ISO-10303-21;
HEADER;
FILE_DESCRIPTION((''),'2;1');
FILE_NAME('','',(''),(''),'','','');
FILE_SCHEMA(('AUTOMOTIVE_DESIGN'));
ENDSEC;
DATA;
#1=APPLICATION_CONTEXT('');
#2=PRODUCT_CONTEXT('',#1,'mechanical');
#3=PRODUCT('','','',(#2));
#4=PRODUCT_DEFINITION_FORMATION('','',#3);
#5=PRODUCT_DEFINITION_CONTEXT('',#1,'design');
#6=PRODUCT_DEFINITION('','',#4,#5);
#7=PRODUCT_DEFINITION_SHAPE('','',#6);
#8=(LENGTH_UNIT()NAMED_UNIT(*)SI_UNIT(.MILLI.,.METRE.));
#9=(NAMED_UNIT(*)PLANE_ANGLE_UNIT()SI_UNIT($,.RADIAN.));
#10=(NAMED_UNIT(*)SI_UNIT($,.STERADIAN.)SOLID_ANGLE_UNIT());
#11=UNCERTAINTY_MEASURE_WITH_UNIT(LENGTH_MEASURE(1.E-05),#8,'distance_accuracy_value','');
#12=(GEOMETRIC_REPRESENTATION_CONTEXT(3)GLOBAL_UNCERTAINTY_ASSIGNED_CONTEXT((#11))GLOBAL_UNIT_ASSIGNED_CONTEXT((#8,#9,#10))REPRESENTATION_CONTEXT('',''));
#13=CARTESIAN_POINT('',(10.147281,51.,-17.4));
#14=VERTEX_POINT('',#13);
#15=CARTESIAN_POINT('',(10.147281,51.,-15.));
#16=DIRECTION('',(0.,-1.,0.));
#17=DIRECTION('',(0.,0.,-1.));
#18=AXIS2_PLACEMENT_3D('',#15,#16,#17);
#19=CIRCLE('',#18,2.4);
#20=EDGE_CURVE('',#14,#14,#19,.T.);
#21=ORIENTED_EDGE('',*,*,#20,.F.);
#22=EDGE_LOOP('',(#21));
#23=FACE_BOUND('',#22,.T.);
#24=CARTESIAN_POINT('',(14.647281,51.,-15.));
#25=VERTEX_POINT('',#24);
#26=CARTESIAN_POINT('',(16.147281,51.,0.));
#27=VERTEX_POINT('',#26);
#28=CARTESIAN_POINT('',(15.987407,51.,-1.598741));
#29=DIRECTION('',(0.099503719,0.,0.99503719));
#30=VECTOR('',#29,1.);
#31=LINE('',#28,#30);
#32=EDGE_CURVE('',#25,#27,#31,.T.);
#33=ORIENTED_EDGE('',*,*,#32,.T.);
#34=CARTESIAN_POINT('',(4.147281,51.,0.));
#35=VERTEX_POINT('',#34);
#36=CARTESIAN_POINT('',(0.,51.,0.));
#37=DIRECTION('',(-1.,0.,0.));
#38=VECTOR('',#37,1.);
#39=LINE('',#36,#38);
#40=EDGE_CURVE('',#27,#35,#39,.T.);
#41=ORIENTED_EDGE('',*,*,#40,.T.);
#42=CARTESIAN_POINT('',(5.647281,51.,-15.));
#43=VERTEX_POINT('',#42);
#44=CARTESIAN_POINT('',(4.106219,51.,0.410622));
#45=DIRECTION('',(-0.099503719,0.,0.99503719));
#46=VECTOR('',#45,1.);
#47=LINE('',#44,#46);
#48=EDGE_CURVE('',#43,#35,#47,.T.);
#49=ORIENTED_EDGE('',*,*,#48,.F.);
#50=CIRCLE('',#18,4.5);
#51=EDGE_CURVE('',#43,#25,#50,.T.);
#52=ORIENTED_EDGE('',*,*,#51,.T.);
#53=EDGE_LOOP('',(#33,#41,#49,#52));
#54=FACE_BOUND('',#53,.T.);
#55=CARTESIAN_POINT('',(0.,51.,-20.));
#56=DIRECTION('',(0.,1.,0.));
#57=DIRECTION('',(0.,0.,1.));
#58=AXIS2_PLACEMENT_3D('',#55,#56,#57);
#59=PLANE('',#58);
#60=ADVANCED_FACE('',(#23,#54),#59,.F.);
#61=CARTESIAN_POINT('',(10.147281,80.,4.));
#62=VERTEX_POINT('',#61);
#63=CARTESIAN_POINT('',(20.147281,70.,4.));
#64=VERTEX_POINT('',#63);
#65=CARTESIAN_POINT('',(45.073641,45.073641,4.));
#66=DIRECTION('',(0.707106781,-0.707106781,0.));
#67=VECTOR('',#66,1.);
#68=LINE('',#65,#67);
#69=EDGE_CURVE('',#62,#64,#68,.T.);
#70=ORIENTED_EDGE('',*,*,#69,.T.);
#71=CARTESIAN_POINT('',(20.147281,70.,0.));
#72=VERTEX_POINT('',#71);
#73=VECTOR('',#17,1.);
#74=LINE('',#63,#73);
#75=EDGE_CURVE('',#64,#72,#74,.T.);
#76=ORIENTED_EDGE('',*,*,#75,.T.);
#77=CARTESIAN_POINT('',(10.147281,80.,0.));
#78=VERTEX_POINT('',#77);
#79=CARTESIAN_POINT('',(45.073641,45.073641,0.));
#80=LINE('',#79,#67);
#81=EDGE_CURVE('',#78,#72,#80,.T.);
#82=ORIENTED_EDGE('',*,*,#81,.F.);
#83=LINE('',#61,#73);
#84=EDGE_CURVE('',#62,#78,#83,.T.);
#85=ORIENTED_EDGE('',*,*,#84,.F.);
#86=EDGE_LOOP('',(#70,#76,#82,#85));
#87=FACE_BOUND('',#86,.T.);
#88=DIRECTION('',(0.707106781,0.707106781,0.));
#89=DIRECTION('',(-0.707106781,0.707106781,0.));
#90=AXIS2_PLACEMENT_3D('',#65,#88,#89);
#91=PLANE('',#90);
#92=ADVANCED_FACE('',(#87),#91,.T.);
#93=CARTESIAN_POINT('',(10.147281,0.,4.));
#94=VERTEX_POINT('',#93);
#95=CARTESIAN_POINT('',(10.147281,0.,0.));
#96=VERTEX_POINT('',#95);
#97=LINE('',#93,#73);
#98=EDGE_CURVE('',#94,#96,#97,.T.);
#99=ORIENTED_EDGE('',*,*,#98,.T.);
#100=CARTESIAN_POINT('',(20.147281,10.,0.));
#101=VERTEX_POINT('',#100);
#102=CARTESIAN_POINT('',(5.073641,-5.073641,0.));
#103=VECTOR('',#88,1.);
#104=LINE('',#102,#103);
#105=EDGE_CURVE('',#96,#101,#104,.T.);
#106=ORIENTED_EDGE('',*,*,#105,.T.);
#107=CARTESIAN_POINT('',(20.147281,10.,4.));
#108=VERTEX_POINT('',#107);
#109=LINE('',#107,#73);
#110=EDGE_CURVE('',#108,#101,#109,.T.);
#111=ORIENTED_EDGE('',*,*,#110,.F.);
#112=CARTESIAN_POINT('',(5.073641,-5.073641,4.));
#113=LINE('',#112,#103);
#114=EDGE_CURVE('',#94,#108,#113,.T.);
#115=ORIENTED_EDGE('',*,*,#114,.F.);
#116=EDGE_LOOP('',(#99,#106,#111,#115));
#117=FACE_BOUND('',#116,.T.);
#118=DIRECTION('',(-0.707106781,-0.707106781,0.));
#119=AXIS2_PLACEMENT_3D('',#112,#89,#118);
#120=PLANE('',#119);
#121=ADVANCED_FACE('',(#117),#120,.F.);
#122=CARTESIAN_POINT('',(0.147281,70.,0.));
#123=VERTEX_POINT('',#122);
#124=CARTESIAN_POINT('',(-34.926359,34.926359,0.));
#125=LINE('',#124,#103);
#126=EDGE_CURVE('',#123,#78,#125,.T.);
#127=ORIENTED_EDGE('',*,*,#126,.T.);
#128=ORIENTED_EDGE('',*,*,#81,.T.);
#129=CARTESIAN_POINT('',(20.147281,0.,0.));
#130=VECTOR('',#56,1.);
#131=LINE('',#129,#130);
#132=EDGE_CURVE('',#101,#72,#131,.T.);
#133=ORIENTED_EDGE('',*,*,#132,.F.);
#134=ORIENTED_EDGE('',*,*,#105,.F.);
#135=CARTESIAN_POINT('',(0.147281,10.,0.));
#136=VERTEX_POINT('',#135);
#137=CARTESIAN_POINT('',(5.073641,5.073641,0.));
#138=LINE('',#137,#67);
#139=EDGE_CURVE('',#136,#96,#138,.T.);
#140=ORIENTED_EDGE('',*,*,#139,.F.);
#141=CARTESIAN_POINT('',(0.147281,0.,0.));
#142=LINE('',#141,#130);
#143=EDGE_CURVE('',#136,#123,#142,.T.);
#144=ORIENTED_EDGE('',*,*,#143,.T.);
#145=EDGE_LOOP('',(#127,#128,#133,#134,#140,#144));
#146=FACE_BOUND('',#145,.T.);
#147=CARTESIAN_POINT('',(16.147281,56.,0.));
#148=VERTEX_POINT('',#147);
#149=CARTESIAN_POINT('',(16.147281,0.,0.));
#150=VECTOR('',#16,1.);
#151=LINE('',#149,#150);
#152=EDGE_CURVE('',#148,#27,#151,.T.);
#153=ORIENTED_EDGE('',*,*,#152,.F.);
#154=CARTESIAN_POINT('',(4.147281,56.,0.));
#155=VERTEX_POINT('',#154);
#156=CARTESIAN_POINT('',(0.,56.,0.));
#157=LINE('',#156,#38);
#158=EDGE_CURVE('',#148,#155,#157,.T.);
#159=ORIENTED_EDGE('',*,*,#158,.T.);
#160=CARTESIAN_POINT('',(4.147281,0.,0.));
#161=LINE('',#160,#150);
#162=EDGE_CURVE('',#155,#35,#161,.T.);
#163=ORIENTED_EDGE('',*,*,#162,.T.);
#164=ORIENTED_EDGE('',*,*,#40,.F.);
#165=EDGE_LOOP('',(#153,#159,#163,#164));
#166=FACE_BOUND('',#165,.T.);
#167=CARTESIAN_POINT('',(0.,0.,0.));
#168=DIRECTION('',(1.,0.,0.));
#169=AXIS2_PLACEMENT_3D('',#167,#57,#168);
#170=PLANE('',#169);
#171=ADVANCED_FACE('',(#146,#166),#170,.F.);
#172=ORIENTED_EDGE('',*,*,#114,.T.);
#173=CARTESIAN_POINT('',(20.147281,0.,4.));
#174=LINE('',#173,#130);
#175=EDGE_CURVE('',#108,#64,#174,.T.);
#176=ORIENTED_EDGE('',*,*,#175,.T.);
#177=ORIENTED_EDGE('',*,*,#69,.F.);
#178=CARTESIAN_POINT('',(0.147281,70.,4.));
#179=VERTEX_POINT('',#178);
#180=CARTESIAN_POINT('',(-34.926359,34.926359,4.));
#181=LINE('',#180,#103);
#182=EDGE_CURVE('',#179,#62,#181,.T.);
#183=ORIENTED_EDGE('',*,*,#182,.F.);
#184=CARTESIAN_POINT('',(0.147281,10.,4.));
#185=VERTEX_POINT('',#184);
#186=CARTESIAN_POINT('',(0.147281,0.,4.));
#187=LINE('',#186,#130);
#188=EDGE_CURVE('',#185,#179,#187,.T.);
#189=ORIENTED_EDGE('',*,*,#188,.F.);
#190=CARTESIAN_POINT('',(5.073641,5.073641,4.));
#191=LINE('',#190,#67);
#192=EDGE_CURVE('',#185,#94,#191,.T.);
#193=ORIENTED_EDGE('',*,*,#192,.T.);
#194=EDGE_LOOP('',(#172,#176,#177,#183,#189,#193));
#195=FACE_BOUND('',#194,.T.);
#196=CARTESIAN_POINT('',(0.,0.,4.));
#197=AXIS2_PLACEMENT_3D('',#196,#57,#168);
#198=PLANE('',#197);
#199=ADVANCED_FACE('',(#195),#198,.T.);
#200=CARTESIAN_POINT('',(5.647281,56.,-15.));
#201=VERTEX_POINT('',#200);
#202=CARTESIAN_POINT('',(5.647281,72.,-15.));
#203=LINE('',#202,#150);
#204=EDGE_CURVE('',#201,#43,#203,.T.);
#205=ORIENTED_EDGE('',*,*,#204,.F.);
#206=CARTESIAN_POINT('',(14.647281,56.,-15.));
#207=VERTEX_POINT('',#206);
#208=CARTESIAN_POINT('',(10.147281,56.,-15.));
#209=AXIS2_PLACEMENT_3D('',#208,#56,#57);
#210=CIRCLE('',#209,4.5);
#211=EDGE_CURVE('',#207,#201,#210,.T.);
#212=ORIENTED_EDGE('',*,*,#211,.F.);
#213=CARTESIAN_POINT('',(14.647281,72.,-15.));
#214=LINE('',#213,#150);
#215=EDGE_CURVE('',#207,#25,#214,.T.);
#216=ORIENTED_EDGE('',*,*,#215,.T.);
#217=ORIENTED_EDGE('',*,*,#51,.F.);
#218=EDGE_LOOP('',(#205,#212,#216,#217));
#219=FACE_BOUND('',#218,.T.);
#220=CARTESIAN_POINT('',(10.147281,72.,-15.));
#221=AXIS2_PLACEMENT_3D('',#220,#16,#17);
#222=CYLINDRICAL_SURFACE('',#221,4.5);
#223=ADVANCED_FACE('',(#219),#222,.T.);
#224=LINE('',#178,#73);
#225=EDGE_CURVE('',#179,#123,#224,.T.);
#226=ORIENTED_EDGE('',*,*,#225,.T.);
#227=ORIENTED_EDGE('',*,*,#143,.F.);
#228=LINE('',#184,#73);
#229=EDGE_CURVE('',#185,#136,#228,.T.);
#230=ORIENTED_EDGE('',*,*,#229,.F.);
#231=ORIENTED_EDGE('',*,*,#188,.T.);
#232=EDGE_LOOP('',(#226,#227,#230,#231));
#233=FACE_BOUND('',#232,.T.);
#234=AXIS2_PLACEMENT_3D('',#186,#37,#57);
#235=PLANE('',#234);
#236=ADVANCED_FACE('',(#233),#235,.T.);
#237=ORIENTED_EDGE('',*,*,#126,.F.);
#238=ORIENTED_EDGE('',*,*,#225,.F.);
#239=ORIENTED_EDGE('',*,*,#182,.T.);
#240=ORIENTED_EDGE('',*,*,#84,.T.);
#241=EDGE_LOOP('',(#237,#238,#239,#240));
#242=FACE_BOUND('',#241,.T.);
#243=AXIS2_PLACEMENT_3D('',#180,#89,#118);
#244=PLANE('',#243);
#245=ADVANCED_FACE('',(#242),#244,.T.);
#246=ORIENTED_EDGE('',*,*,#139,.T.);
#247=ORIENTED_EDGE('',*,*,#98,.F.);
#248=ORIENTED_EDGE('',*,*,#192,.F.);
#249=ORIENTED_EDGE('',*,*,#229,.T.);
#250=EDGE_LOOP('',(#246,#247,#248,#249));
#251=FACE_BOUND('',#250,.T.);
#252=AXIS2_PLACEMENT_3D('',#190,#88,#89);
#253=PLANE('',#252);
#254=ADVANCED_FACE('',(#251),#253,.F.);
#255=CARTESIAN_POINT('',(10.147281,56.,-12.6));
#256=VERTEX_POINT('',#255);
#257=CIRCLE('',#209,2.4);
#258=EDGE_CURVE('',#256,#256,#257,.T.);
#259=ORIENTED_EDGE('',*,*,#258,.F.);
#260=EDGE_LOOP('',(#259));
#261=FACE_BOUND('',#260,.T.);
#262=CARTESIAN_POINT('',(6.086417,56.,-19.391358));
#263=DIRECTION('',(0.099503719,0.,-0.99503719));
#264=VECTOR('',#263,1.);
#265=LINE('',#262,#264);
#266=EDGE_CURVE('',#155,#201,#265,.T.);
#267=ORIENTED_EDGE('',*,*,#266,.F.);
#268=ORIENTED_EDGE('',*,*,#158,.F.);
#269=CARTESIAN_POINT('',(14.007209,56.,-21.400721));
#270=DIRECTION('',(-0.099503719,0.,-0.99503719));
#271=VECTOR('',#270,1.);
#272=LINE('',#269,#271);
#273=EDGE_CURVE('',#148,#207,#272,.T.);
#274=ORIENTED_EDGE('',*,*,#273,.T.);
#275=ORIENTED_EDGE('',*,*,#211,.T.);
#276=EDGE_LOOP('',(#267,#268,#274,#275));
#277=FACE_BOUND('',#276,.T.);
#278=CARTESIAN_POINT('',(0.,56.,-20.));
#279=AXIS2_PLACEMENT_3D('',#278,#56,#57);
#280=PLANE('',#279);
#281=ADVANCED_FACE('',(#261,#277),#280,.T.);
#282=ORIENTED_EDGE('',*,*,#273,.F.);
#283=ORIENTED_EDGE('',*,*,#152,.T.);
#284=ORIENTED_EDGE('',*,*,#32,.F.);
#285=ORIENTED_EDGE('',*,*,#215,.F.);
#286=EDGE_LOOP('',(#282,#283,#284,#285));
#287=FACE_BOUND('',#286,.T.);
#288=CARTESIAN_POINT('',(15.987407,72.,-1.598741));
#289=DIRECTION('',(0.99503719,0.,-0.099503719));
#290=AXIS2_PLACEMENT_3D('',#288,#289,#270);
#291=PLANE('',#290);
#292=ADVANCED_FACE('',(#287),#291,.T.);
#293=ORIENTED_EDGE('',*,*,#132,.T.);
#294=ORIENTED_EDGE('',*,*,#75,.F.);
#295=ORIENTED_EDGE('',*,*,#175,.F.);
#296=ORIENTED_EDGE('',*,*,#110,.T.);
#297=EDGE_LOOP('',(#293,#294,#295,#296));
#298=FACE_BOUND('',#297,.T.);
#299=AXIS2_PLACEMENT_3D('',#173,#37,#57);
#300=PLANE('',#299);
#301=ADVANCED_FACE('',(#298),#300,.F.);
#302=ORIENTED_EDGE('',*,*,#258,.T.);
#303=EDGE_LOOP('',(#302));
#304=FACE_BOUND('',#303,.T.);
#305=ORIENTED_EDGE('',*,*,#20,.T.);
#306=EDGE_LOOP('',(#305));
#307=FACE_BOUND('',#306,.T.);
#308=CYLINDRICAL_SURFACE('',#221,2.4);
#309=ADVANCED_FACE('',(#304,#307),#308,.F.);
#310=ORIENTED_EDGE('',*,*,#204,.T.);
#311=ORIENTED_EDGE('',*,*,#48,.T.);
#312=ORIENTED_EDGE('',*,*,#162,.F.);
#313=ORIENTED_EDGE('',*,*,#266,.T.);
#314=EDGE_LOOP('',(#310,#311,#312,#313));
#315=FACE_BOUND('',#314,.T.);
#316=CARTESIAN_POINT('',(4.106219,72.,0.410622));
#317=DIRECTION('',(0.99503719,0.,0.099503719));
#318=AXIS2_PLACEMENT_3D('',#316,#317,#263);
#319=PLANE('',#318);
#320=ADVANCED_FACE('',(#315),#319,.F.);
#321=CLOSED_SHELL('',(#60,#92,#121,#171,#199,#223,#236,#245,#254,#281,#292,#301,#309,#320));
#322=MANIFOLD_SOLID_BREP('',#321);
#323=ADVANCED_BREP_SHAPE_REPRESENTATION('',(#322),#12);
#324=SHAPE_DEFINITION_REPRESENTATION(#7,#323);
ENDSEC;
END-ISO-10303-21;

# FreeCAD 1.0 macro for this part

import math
import FreeCAD as App
import Part
import Sketcher
from FreeCAD import Vector
Q = App.Units.Quantity

doc = App.newDocument("Part")
body = doc.addObject("PartDesign::Body", "Body")

# Sketch on XY plane
sketch1 = doc.addObject("Sketcher::SketchObject", "Sketch")
body.addObject(sketch1)
sketch1.AttachmentSupport = (doc.XY_Plane, [""])
sketch1.MapMode = "FlatFace"
sketch1.addGeometry(Part.LineSegment(Vector(0.147281, 70, 0), Vector(0.147281, 10, 0)), False)
sketch1.addGeometry(Part.LineSegment(Vector(0.147281, 10, 0), Vector(10.147281, 0, 0)), False)
sketch1.addGeometry(Part.LineSegment(Vector(10.147281, 0, 0), Vector(20.147281, 10, 0)), False)
sketch1.addGeometry(Part.LineSegment(Vector(20.147281, 10, 0), Vector(20.147281, 70, 0)), False)
sketch1.addGeometry(Part.LineSegment(Vector(20.147281, 70, 0), Vector(10.147281, 80, 0)), False)
sketch1.addGeometry(Part.LineSegment(Vector(10.147281, 80, 0), Vector(0.147281, 70, 0)), False)
sketch1.addConstraint(Sketcher.Constraint("Coincident", 0, 2, 1, 1))
sketch1.addConstraint(Sketcher.Constraint("Coincident", 1, 2, 2, 1))
sketch1.addConstraint(Sketcher.Constraint("Coincident", 2, 2, 3, 1))
sketch1.addConstraint(Sketcher.Constraint("Coincident", 3, 2, 4, 1))
sketch1.addConstraint(Sketcher.Constraint("Coincident", 4, 2, 5, 1))
sketch1.addConstraint(Sketcher.Constraint("Coincident", 5, 2, 0, 1))
sketch1.addConstraint(Sketcher.Constraint("Vertical", 0))
sketch1.addConstraint(Sketcher.Constraint("Vertical", 3))
sketch1.addConstraint(Sketcher.Constraint("PointOnObject", 1, 2, -1))
sketch1.addConstraint(Sketcher.Constraint("Perpendicular", 1, 2))
sketch1.addConstraint(Sketcher.Constraint("Perpendicular", 2, 4))
sketch1.addConstraint(Sketcher.Constraint("Perpendicular", 4, 5))
sketch1.addConstraint(Sketcher.Constraint("Horizontal", 0, 2, 2, 2))
sketch1.addConstraint(Sketcher.Constraint("Horizontal", 3, 2, 5, 2))
sketch1.addConstraint(Sketcher.Constraint("Vertical", 1, 2, 4, 2))
sketch1.addConstraint(Sketcher.Constraint("DistanceY", 0, 2, 0, 1, Q("60 mm")))
sketch1.addConstraint(Sketcher.Constraint("DistanceY", -1, 1, 0, 2, Q("10 mm")))
sketch1.addConstraint(Sketcher.Constraint("DistanceX", -1, 1, 0, 2, Q("0.147281 mm")))
pad1 = doc.addObject("PartDesign::Pad", "Pad")
body.addObject(pad1)
pad1.Profile = sketch1
pad1.Length = 4

# Sketch on XY plane
sketch2 = doc.addObject("Sketcher::SketchObject", "Sketch001")
body.addObject(sketch2)
sketch2.AttachmentSupport = (doc.XY_Plane, [""])
sketch2.MapMode = "FlatFace"
sketch2.addGeometry(Part.LineSegment(Vector(16.147281, 56, 0), Vector(16.147281, 51, 0)), False)
sketch2.addGeometry(Part.LineSegment(Vector(16.147281, 51, 0), Vector(4.147281, 51, 0)), False)
sketch2.addGeometry(Part.LineSegment(Vector(4.147281, 51, 0), Vector(4.147281, 56, 0)), False)
sketch2.addGeometry(Part.LineSegment(Vector(4.147281, 56, 0), Vector(16.147281, 56, 0)), False)
sketch2.addConstraint(Sketcher.Constraint("Coincident", 0, 2, 1, 1))
sketch2.addConstraint(Sketcher.Constraint("Coincident", 1, 2, 2, 1))
sketch2.addConstraint(Sketcher.Constraint("Coincident", 2, 2, 3, 1))
sketch2.addConstraint(Sketcher.Constraint("Coincident", 3, 2, 0, 1))
sketch2.addConstraint(Sketcher.Constraint("Vertical", 0))
sketch2.addConstraint(Sketcher.Constraint("Horizontal", 1))
sketch2.addConstraint(Sketcher.Constraint("Vertical", 2))
sketch2.addConstraint(Sketcher.Constraint("Horizontal", 3))
sketch2.addConstraint(Sketcher.Constraint("DistanceX", 1, 2, 1, 1, Q("12 mm")))
sketch2.addConstraint(Sketcher.Constraint("DistanceY", 0, 2, 0, 1, Q("5 mm")))
sketch2.addConstraint(Sketcher.Constraint("DistanceY", -1, 1, 0, 2, Q("51 mm")))
sketch2.addConstraint(Sketcher.Constraint("DistanceX", -1, 1, 0, 2, Q("16.147281 mm")))
pad2 = doc.addObject("PartDesign::Pad", "Pad001")
body.addObject(pad2)
pad2.Profile = sketch2
pad2.Length = 20
pad2.Reversed = True

# Sketch on XZ plane
sketch3 = doc.addObject("Sketcher::SketchObject", "Sketch002")
body.addObject(sketch3)
sketch3.AttachmentSupport = (doc.XZ_Plane, [""])
sketch3.MapMode = "FlatFace"
sketch3.AttachmentOffset = App.Placement(Vector(0, 0, -51), App.Rotation())
sketch3.addGeometry(Part.Circle(Vector(10.147281, -15, 0), Vector(0, 0, 1), 2.4), False)
sketch3.addGeometry(Part.ArcOfCircle(Part.Circle(Vector(10.147281, -15, 0), Vector(0, 0, 1), 4.5), math.radians(180), math.radians(360)), False)
sketch3.addGeometry(Part.LineSegment(Vector(5.647281, -15, 0), Vector(4.147281, 0, 0)), False)
sketch3.addGeometry(Part.LineSegment(Vector(4.147281, 0, 0), Vector(4.147281, -20, 0)), False)
sketch3.addGeometry(Part.LineSegment(Vector(4.147281, -20, 0), Vector(16.147281, -20, 0)), False)
sketch3.addGeometry(Part.LineSegment(Vector(16.147281, -20, 0), Vector(16.147281, 0, 0)), False)
sketch3.addGeometry(Part.LineSegment(Vector(16.147281, 0, 0), Vector(14.647281, -15, 0)), False)
sketch3.addConstraint(Sketcher.Constraint("Coincident", 1, 1, 2, 1))
sketch3.addConstraint(Sketcher.Constraint("Coincident", 2, 2, 3, 1))
sketch3.addConstraint(Sketcher.Constraint("Coincident", 3, 2, 4, 1))
sketch3.addConstraint(Sketcher.Constraint("Coincident", 4, 2, 5, 1))
sketch3.addConstraint(Sketcher.Constraint("Coincident", 5, 2, 6, 1))
sketch3.addConstraint(Sketcher.Constraint("Coincident", 6, 2, 1, 2))
sketch3.addConstraint(Sketcher.Constraint("Vertical", 3))
sketch3.addConstraint(Sketcher.Constraint("Horizontal", 4))
sketch3.addConstraint(Sketcher.Constraint("Vertical", 5))
sketch3.addConstraint(Sketcher.Constraint("Coincident", 1, 3, 0, 3))
sketch3.addConstraint(Sketcher.Constraint("PointOnObject", 2, 2, -1))
sketch3.addConstraint(Sketcher.Constraint("PointOnObject", 5, 2, -1))
sketch3.addConstraint(Sketcher.Constraint("Horizontal", 0, 3, 1, 1))
sketch3.addConstraint(Sketcher.Constraint("Horizontal", 1, 1, 6, 2))
sketch3.addConstraint(Sketcher.Constraint("Equal", 2, 6))
sketch3.addConstraint(Sketcher.Constraint("Diameter", 0, Q("4.8 mm")))
sketch3.addConstraint(Sketcher.Constraint("Radius", 1, Q("4.5 mm")))
sketch3.addConstraint(Sketcher.Constraint("DistanceX", 4, 1, 4, 2, Q("12 mm")))
sketch3.addConstraint(Sketcher.Constraint("DistanceY", 3, 2, 3, 1, Q("20 mm")))
sketch3.addConstraint(Sketcher.Constraint("DistanceY", 0, 3, -1, 1, Q("15 mm")))
sketch3.addConstraint(Sketcher.Constraint("DistanceX", -1, 1, 0, 3, Q("10.147281 mm")))
pocket1 = doc.addObject("PartDesign::Pocket", "Pocket")
body.addObject(pocket1)
pocket1.Profile = sketch3
pocket1.Length = 21

doc.recompute()
